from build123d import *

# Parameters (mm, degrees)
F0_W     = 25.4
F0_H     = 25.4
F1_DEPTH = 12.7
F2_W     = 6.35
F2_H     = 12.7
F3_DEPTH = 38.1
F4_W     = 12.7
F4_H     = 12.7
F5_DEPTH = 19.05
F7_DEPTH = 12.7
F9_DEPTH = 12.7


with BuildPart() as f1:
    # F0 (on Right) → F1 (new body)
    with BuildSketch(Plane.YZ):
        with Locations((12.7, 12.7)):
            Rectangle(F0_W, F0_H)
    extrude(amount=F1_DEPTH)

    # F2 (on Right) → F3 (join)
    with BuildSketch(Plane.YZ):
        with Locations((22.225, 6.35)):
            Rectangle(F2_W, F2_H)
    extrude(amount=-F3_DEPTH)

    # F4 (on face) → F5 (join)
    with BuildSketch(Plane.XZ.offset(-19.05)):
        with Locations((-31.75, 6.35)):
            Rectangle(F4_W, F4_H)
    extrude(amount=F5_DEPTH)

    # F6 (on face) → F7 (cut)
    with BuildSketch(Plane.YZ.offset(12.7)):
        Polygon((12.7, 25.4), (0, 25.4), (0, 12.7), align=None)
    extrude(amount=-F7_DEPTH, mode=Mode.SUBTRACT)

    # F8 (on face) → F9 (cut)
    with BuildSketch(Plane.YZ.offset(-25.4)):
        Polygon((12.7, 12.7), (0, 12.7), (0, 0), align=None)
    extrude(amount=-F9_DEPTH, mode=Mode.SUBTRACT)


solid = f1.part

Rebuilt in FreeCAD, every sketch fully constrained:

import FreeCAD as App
import Part
import Sketcher

V = App.Vector
Q = App.Units.Quantity


def add_polygon(sketch, points):
    """Adds a closed chain of lines whose ends are joined by coincident constraints."""
    first, n = sketch.GeometryCount, len(points)
    for a, b in zip(points, points[1:] + points[:1]):
        sketch.addGeometry(Part.LineSegment(App.Vector(*a, 0), App.Vector(*b, 0)), False)
    for i in range(n):
        sketch.addConstraint(Sketcher.Constraint("Coincident", first + i, 2, first + (i + 1) % n, 1))

doc = App.newDocument("Part")
params = doc.addObject("Spreadsheet::Sheet", "Params")
for row, (alias, value) in enumerate([
    ("sketch1_width", "1 in"),
    ("pad1_length", "0.5 in"),
    ("sketch2_height", "0.5 in"),
    ("sketch2_width", "0.25 in"),
    ("pad2_length", "1.5 in"),
    ("sketch3_width", "0.5 in"),
    ("pad3_length", "0.75 in"),
    ("sketch4_width", "0.5 in"),
    ("pocket1_length", "0.5 in"),
    ("sketch5_width", "0.5 in"),
    ("pocket2_length", "0.5 in"),
], start=1):
    params.set(f"A{row}", alias)
    params.set(f"B{row}", "=" + value)
    params.setAlias(f"B{row}", alias)

body = doc.addObject("PartDesign::Body", "Body")

sketch1 = body.newObject("Sketcher::SketchObject", "Sketch")
sketch1.AttachmentSupport = (doc.getObject("YZ_Plane"), [""])
sketch1.MapMode = "FlatFace"
add_polygon(sketch1, [(0, 25), (0, 0), (25, 0), (25, 25)])
sketch1.addConstraint([
    Sketcher.Constraint("Vertical", 0),
    Sketcher.Constraint("Horizontal", 1),
    Sketcher.Constraint("Vertical", 2),
    Sketcher.Constraint("Horizontal", 3),
    Sketcher.Constraint("Coincident", 0, 2, -1, 1),
    Sketcher.Constraint("Equal", 3, 0),
    Sketcher.Constraint("DistanceX", 1, 1, 1, 2, Q("1 in")),
])
sketch1.setExpression("Constraints[10]", "Params.sketch1_width")
pad1 = body.newObject("PartDesign::Pad", "Pad")
pad1.Profile = sketch1
pad1.setExpression("Length", "Params.pad1_length")

sketch2 = body.newObject("Sketcher::SketchObject", "Sketch001")
sketch2.AttachmentSupport = (doc.getObject("YZ_Plane"), [""])
sketch2.MapMode = "FlatFace"
add_polygon(sketch2, [(19, 13), (19, 0), (25, 0), (25, 13)])
sketch2.addConstraint([
    Sketcher.Constraint("Vertical", 0),
    Sketcher.Constraint("Horizontal", 1),
    Sketcher.Constraint("Vertical", 2),
    Sketcher.Constraint("Horizontal", 3),
    Sketcher.Constraint("PointOnObject", 0, 2, -1),
    Sketcher.Constraint("DistanceY", 0, 2, 0, 1, Q("0.5 in")),
    Sketcher.Constraint("DistanceX", -1, 1, 1, 2, Q("1 in")),
    Sketcher.Constraint("DistanceX", 1, 1, 1, 2, Q("0.25 in")),
])
sketch2.setExpression("Constraints[9]", "Params.sketch2_height")
sketch2.setExpression("Constraints[11]", "Params.sketch2_width")
pad2 = body.newObject("PartDesign::Pad", "Pad001")
pad2.Profile = sketch2
pad2.setExpression("Length", "Params.pad2_length")
pad2.Reversed = True

sketch3 = body.newObject("Sketcher::SketchObject", "Sketch002")
sketch3.AttachmentSupport = (doc.getObject("XZ_Plane"), [""])
sketch3.MapMode = "FlatFace"
sketch3.AttachmentOffset = App.Placement(V(0, 0, -0.75 * 25.4), App.Rotation())
add_polygon(sketch3, [(-38, 13), (-38, 0), (-25, 0), (-25, 13)])
sketch3.addConstraint([
    Sketcher.Constraint("Vertical", 0),
    Sketcher.Constraint("Horizontal", 1),
    Sketcher.Constraint("Vertical", 2),
    Sketcher.Constraint("Horizontal", 3),
    Sketcher.Constraint("PointOnObject", 0, 2, -1),
    Sketcher.Constraint("Equal", 3, 0),
    Sketcher.Constraint("DistanceX", 1, 1, 1, 2, Q("0.5 in")),
    Sketcher.Constraint("DistanceX", 1, 2, -1, 1, Q("1 in")),
])
sketch3.setExpression("Constraints[10]", "Params.sketch3_width")
pad3 = body.newObject("PartDesign::Pad", "Pad002")
pad3.Profile = sketch3
pad3.setExpression("Length", "Params.pad3_length")

sketch4 = body.newObject("Sketcher::SketchObject", "Sketch003")
sketch4.AttachmentSupport = (doc.getObject("YZ_Plane"), [""])
sketch4.MapMode = "FlatFace"
sketch4.AttachmentOffset = App.Placement(V(0, 0, 0.5 * 25.4), App.Rotation())
add_polygon(sketch4, [(13, 25), (0, 25), (0, 13)])
sketch4.addConstraint([
    Sketcher.Constraint("Horizontal", 0),
    Sketcher.Constraint("Vertical", 1),
    Sketcher.Constraint("PointOnObject", 0, 2, -2),
    Sketcher.Constraint("Equal", 0, 1),
    Sketcher.Constraint("DistanceX", 0, 2, 0, 1, Q("0.5 in")),
    Sketcher.Constraint("DistanceY", -1, 1, 0, 2, Q("1 in")),
])
sketch4.setExpression("Constraints[7]", "Params.sketch4_width")
pocket1 = body.newObject("PartDesign::Pocket", "Pocket")
pocket1.Profile = sketch4
pocket1.setExpression("Length", "Params.pocket1_length")

sketch5 = body.newObject("Sketcher::SketchObject", "Sketch004")
sketch5.AttachmentSupport = (doc.getObject("YZ_Plane"), [""])
sketch5.MapMode = "FlatFace"
sketch5.AttachmentOffset = App.Placement(V(0, 0, -1 * 25.4), App.Rotation())
add_polygon(sketch5, [(13, 13), (0, 13), (0, 0)])
sketch5.addConstraint([
    Sketcher.Constraint("Horizontal", 0),
    Sketcher.Constraint("Vertical", 1),
    Sketcher.Constraint("Coincident", 1, 2, -1, 1),
    Sketcher.Constraint("Equal", 0, 1),
    Sketcher.Constraint("DistanceX", 0, 2, 0, 1, Q("0.5 in")),
])
sketch5.setExpression("Constraints[7]", "Params.sketch5_width")
pocket2 = body.newObject("PartDesign::Pocket", "Pocket001")
pocket2.Profile = sketch5
pocket2.setExpression("Length", "Params.pocket2_length")

doc.recompute()
